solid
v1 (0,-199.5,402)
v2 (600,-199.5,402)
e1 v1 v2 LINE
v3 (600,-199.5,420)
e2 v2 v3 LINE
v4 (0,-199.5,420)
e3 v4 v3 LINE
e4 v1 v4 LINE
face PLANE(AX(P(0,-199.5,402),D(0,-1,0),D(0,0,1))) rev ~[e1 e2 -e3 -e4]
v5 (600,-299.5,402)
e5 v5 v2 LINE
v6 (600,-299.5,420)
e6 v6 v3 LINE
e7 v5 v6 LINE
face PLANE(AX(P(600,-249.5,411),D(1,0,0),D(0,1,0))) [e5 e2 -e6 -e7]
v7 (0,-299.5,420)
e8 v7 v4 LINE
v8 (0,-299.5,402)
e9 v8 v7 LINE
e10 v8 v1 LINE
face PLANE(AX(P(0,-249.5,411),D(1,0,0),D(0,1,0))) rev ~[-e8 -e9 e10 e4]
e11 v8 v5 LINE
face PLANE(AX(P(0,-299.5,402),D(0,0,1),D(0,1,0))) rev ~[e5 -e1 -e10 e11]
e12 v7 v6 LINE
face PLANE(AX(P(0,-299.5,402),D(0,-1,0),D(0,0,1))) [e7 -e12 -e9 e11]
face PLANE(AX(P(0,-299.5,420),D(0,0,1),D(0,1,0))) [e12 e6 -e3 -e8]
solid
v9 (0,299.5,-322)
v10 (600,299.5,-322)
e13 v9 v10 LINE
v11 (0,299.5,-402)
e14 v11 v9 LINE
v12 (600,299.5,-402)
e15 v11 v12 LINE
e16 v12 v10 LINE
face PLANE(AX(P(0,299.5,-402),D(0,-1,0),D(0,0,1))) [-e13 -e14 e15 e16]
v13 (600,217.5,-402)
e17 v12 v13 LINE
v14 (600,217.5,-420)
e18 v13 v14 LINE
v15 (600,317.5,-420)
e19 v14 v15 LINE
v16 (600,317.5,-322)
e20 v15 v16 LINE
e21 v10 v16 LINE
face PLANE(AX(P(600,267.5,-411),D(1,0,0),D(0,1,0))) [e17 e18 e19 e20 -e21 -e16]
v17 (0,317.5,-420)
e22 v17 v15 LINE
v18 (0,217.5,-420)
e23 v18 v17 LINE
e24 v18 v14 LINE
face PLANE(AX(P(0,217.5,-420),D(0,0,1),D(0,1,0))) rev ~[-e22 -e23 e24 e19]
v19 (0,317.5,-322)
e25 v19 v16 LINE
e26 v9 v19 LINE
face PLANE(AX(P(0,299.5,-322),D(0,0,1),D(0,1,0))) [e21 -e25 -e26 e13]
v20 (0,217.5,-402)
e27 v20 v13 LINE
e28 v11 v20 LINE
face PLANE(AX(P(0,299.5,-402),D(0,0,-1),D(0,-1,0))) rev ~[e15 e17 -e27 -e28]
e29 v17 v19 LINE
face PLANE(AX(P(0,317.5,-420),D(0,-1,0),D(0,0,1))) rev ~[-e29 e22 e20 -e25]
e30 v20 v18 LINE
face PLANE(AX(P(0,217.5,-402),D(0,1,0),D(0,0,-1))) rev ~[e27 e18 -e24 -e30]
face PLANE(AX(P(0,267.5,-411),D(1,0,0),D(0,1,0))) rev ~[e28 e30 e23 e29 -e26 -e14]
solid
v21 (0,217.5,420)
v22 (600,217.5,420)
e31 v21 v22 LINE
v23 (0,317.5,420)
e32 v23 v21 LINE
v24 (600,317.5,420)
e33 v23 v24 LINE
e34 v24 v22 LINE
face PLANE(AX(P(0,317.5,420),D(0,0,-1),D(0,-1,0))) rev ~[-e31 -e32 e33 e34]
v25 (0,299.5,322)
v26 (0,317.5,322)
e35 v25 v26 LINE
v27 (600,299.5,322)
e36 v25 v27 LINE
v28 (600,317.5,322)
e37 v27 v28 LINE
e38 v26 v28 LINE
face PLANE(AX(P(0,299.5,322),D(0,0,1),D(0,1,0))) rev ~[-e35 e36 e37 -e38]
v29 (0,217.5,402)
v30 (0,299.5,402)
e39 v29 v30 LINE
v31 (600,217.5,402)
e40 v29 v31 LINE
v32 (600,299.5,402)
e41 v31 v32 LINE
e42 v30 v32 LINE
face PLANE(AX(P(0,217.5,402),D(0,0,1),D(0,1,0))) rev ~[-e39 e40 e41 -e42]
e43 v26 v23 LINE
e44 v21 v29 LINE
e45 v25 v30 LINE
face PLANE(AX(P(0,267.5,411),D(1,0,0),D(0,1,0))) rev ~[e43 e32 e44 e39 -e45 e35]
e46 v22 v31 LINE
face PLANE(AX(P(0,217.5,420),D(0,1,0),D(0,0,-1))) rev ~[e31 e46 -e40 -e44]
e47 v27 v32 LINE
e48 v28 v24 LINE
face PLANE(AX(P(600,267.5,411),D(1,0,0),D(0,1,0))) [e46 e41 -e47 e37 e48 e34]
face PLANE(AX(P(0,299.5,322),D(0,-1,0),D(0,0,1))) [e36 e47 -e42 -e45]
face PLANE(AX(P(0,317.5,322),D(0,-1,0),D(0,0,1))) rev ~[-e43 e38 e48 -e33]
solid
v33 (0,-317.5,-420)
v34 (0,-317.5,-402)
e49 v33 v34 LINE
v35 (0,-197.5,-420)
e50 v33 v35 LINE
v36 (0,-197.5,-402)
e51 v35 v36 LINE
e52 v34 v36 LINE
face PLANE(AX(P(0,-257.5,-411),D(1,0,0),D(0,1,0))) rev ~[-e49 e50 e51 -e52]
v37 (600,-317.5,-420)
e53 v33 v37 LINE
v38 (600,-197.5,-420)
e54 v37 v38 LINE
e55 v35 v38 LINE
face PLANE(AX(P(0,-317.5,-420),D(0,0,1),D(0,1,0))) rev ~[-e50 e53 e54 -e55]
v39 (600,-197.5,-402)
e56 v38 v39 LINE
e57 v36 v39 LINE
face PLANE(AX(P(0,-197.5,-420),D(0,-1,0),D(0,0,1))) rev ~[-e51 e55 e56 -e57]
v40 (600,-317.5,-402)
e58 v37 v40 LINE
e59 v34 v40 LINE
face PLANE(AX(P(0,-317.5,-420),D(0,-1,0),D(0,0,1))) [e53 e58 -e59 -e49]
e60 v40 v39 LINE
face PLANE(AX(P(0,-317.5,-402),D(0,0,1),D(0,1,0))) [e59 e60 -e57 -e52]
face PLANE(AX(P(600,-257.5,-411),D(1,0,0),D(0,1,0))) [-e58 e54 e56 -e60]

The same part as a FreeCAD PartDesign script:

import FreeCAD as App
import Part
import Sketcher
Q = App.Units.Quantity

doc = App.newDocument("Part")
body = doc.addObject("PartDesign::Body", "Body")
body.AllowCompound = True

sketch1 = body.newObject("Sketcher::SketchObject", "Sketch")
sketch1.AttachmentSupport = (doc.getObject("YZ_Plane"), [""])
sketch1.MapMode = "FlatFace"
sketch1.addGeometry([
    Part.LineSegment(App.Vector(318, 420, 0), App.Vector(218, 420, 0)),
    Part.LineSegment(App.Vector(218, 420, 0), App.Vector(218, 402, 0)),
    Part.LineSegment(App.Vector(218, 402, 0), App.Vector(300, 402, 0)),
    Part.LineSegment(App.Vector(300, 402, 0), App.Vector(300, 322, 0)),
    Part.LineSegment(App.Vector(300, 322, 0), App.Vector(318, 322, 0)),
    Part.LineSegment(App.Vector(318, 322, 0), App.Vector(318, 420, 0)),
    Part.LineSegment(App.Vector(-300, 420, 0), App.Vector(-300, 402, 0)),
    Part.LineSegment(App.Vector(-300, 402, 0), App.Vector(-200, 402, 0)),
    Part.LineSegment(App.Vector(-200, 402, 0), App.Vector(-200, 420, 0)),
    Part.LineSegment(App.Vector(-200, 420, 0), App.Vector(-300, 420, 0)),
    Part.LineSegment(App.Vector(-318, -402, 0), App.Vector(-318, -420, 0)),
    Part.LineSegment(App.Vector(-318, -420, 0), App.Vector(-198, -420, 0)),
    Part.LineSegment(App.Vector(-198, -420, 0), App.Vector(-198, -402, 0)),
    Part.LineSegment(App.Vector(-198, -402, 0), App.Vector(-318, -402, 0)),
    Part.LineSegment(App.Vector(218, -420, 0), App.Vector(318, -420, 0)),
    Part.LineSegment(App.Vector(318, -420, 0), App.Vector(318, -322, 0)),
    Part.LineSegment(App.Vector(318, -322, 0), App.Vector(300, -322, 0)),
    Part.LineSegment(App.Vector(300, -322, 0), App.Vector(300, -402, 0)),
    Part.LineSegment(App.Vector(300, -402, 0), App.Vector(218, -402, 0)),
    Part.LineSegment(App.Vector(218, -402, 0), App.Vector(218, -420, 0)),
], False)
sketch1.addConstraint([
    Sketcher.Constraint("Coincident", 0, 2, 1, 1),
    Sketcher.Constraint("Coincident", 1, 2, 2, 1),
    Sketcher.Constraint("Coincident", 2, 2, 3, 1),
    Sketcher.Constraint("Coincident", 3, 2, 4, 1),
    Sketcher.Constraint("Coincident", 4, 2, 5, 1),
    Sketcher.Constraint("Coincident", 5, 2, 0, 1),
    Sketcher.Constraint("Coincident", 6, 2, 7, 1),
    Sketcher.Constraint("Coincident", 7, 2, 8, 1),
    Sketcher.Constraint("Coincident", 8, 2, 9, 1),
    Sketcher.Constraint("Coincident", 9, 2, 6, 1),
    Sketcher.Constraint("Coincident", 10, 2, 11, 1),
    Sketcher.Constraint("Coincident", 11, 2, 12, 1),
    Sketcher.Constraint("Coincident", 12, 2, 13, 1),
    Sketcher.Constraint("Coincident", 13, 2, 10, 1),
    Sketcher.Constraint("Coincident", 14, 2, 15, 1),
    Sketcher.Constraint("Coincident", 15, 2, 16, 1),
    Sketcher.Constraint("Coincident", 16, 2, 17, 1),
    Sketcher.Constraint("Coincident", 17, 2, 18, 1),
    Sketcher.Constraint("Coincident", 18, 2, 19, 1),
    Sketcher.Constraint("Coincident", 19, 2, 14, 1),
    Sketcher.Constraint("Horizontal", 0),
    Sketcher.Constraint("Vertical", 1),
    Sketcher.Constraint("Horizontal", 2),
    Sketcher.Constraint("Vertical", 3),
    Sketcher.Constraint("Horizontal", 4),
    Sketcher.Constraint("Vertical", 5),
    Sketcher.Constraint("Vertical", 6),
    Sketcher.Constraint("Horizontal", 7),
    Sketcher.Constraint("Vertical", 8),
    Sketcher.Constraint("Horizontal", 9),
    Sketcher.Constraint("Vertical", 10),
    Sketcher.Constraint("Horizontal", 11),
    Sketcher.Constraint("Vertical", 12),
    Sketcher.Constraint("Horizontal", 13),
    Sketcher.Constraint("Horizontal", 14),
    Sketcher.Constraint("Vertical", 15),
    Sketcher.Constraint("Horizontal", 16),
    Sketcher.Constraint("Vertical", 17),
    Sketcher.Constraint("Horizontal", 18),
    Sketcher.Constraint("Vertical", 19),
    Sketcher.Constraint("Symmetric", 5, 2, 10, 2, -1, 1),
    Sketcher.Constraint("Symmetric", 6, 2, 17, 2, -1, 1),
    Sketcher.Constraint("Symmetric", 2, 2, 6, 2, -2),
    Sketcher.Constraint("Symmetric", 10, 2, 14, 2, -2),
    Sketcher.Constraint("Horizontal", 5, 2, 8, 2),
    Sketcher.Constraint("Horizontal", 13, 2, 17, 2),
    Sketcher.Constraint("Vertical", 1, 2, 18, 2),
    Sketcher.Constraint("Equal", 0, 7),
    Sketcher.Constraint("Equal", 16, 1),
    Sketcher.Constraint("Equal", 5, 15),
    Sketcher.Constraint("DistanceX", 0, 2, 0, 1, Q("100 mm")),
    Sketcher.Constraint("DistanceX", 2, 1, 2, 2, Q("82 mm")),
    Sketcher.Constraint("DistanceX", 11, 1, 11, 2, Q("120 mm")),
    Sketcher.Constraint("DistanceY", 3, 2, 3, 1, Q("80 mm")),
    Sketcher.Constraint("DistanceY", -1, 1, 0, 2, Q("420 mm")),
    Sketcher.Constraint("DistanceX", 6, 2, 1, 2, Q("517 mm")),
])
pad1 = body.newObject("PartDesign::Pad", "Pad")
pad1.Profile = sketch1
pad1.Length = 600

doc.recompute()
